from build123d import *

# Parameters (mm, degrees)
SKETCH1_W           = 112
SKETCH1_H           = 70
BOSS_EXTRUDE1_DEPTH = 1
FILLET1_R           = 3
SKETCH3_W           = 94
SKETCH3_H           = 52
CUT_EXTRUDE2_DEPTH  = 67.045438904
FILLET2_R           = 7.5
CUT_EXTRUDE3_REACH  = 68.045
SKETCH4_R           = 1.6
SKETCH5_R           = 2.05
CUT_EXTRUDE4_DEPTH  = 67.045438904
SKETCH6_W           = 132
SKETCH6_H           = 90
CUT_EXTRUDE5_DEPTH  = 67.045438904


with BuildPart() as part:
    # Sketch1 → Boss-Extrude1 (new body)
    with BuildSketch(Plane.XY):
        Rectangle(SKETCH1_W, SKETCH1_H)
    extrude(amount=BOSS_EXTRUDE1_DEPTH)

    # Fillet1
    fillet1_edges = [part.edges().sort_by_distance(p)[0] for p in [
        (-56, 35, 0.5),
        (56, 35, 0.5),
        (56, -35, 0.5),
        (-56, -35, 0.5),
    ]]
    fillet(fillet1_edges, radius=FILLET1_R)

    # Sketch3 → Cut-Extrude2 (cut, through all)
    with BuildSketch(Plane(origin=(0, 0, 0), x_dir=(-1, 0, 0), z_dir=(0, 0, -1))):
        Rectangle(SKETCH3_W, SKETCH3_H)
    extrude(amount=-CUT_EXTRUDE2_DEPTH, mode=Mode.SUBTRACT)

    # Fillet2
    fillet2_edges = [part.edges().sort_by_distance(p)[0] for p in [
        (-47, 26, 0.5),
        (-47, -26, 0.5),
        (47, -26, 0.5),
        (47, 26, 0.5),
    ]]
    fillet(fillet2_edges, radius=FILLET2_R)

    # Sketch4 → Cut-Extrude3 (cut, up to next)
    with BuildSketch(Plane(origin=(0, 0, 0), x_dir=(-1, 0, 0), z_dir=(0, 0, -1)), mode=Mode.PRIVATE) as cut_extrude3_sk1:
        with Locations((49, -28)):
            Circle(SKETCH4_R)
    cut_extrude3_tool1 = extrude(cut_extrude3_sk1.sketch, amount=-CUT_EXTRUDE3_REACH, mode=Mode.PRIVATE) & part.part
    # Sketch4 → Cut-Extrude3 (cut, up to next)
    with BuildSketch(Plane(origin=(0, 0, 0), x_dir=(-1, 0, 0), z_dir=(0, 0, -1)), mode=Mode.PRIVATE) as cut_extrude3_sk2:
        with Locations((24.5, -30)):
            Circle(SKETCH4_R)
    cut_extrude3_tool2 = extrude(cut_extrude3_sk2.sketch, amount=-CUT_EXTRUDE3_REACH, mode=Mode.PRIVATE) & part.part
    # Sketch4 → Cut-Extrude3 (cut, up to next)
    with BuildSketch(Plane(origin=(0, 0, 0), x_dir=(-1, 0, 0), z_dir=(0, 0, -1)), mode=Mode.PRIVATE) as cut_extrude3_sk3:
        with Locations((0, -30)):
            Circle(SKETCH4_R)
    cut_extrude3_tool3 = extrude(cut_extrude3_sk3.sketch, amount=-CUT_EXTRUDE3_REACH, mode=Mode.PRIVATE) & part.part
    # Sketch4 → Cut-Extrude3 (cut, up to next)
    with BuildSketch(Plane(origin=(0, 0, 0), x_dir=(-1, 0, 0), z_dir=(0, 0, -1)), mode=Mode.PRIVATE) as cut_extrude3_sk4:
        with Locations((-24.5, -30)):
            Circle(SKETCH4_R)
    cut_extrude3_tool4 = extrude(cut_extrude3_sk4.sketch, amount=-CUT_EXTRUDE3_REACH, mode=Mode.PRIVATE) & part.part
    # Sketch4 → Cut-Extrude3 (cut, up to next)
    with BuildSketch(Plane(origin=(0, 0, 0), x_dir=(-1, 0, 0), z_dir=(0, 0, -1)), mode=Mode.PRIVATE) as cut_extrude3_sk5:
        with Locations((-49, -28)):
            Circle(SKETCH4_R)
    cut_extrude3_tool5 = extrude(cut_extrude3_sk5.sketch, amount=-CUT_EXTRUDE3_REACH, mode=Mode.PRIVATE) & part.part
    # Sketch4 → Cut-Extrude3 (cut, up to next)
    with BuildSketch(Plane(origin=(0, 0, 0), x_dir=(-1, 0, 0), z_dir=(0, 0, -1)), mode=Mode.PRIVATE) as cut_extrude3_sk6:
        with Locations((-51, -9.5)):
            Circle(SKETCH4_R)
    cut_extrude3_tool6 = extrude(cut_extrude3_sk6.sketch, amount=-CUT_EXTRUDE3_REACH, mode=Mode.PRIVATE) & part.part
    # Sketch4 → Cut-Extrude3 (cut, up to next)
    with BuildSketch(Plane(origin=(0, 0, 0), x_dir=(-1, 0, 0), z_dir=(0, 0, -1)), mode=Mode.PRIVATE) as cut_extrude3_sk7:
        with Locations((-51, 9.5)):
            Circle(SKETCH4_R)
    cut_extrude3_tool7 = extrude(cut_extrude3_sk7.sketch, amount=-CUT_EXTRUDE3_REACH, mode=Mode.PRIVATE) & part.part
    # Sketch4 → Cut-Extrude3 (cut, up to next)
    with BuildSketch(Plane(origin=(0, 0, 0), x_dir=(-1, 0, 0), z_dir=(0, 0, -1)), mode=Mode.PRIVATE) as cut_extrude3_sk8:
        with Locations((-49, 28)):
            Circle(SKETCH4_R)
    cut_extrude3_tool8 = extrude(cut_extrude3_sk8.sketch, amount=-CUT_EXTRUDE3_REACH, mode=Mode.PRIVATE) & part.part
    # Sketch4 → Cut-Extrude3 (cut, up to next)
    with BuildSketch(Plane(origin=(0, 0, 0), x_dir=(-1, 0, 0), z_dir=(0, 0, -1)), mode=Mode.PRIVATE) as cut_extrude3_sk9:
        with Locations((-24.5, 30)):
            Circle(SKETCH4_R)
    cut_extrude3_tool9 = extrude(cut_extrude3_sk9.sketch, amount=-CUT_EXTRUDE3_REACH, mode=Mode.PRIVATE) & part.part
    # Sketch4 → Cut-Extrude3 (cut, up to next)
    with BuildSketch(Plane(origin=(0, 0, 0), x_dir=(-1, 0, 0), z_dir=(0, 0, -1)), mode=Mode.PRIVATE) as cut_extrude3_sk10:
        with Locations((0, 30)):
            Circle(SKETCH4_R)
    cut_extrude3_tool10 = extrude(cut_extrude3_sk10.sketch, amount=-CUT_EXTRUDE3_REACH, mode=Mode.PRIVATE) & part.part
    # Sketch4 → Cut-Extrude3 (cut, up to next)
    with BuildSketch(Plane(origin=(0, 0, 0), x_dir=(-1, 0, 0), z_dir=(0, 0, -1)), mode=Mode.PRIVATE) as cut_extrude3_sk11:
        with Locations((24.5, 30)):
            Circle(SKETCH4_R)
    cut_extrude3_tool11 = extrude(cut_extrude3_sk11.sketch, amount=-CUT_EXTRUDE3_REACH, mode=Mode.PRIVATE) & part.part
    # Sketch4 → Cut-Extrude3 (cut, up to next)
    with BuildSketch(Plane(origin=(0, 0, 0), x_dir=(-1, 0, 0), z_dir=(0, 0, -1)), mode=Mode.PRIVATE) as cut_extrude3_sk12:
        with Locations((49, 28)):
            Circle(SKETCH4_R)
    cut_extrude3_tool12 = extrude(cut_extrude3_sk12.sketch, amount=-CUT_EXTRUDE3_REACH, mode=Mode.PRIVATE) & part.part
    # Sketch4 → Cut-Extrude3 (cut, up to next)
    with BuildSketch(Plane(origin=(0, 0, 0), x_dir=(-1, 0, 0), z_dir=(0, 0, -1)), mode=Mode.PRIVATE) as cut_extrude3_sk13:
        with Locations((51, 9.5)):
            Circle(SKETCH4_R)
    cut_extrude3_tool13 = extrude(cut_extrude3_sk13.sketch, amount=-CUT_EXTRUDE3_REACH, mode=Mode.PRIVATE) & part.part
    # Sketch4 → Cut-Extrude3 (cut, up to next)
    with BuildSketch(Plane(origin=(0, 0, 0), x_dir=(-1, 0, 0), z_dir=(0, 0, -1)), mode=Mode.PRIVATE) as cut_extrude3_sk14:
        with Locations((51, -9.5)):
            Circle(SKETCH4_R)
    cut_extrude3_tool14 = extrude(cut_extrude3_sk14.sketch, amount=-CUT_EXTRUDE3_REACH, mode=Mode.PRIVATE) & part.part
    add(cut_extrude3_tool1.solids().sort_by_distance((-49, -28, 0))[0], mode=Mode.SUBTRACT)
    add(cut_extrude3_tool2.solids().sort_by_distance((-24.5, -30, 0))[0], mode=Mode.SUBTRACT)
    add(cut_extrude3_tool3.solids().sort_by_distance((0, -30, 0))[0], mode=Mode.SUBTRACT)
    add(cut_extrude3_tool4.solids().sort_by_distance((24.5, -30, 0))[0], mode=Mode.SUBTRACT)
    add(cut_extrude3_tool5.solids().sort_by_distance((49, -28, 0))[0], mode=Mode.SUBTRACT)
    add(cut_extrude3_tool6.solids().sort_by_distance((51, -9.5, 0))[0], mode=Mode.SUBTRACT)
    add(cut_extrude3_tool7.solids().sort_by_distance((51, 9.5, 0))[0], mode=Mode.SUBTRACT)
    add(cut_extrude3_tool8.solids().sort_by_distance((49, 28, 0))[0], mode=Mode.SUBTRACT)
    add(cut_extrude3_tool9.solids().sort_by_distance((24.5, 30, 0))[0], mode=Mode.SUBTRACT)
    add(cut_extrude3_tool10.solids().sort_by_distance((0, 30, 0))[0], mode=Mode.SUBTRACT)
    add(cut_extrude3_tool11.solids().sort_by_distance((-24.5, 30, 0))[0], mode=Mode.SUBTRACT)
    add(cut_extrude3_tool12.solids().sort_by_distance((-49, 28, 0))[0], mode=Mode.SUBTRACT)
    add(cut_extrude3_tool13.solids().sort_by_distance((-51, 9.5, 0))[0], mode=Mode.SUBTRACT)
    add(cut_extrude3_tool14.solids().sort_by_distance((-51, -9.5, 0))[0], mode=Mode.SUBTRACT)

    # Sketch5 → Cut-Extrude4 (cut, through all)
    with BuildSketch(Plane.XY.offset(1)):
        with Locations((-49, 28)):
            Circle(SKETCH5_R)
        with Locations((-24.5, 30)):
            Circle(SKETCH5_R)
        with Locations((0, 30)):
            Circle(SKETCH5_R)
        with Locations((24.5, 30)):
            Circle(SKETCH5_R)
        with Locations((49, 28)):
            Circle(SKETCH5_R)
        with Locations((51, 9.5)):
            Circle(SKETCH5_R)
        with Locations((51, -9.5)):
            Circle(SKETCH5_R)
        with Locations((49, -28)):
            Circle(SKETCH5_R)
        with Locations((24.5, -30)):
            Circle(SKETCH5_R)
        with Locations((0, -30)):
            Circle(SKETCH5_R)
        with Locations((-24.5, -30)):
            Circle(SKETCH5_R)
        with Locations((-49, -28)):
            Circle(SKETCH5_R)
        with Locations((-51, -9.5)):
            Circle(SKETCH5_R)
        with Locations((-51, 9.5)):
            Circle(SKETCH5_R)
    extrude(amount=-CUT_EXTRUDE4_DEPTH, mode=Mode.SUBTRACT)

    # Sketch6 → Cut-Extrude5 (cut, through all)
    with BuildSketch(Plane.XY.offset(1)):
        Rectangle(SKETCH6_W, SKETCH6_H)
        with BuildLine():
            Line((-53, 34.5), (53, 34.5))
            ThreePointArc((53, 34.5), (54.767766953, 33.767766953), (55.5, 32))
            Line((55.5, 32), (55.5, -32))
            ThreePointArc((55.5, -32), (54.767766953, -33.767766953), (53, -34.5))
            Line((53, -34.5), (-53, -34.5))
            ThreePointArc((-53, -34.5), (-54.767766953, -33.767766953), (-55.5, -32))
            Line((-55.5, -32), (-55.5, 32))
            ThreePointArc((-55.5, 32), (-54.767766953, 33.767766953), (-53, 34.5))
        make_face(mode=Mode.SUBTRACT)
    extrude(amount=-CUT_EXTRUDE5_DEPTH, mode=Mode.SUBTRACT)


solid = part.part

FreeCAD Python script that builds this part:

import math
import FreeCAD as App
import Part
import Sketcher

V = App.Vector


def edges_at(feature, points):
    """Names of the edges that pass closest to the given points."""
    edges = feature.Shape.Edges
    near = lambda p: min(range(len(edges)), key=lambda i: edges[i].distToShape(Part.Vertex(*p))[0])
    return sorted({f"Edge{near(p) + 1}" for p in points})

doc = App.newDocument("Part")
body = doc.addObject("PartDesign::Body", "Body")

# Sketch on XY plane
sketch1 = body.newObject("Sketcher::SketchObject", "Sketch")
sketch1.AttachmentSupport = (doc.getObject("XY_Plane"), [""])
sketch1.MapMode = "FlatFace"
sketch1.addGeometry(Part.LineSegment(V(-56, 35, 0), V(-56, -35, 0)), False)
sketch1.addGeometry(Part.LineSegment(V(-56, -35, 0), V(56, -35, 0)), False)
sketch1.addGeometry(Part.LineSegment(V(56, -35, 0), V(56, 35, 0)), False)
sketch1.addGeometry(Part.LineSegment(V(56, 35, 0), V(-56, 35, 0)), False)
sketch1.addConstraint(Sketcher.Constraint("Coincident", 0, 2, 1, 1))
sketch1.addConstraint(Sketcher.Constraint("Coincident", 1, 2, 2, 1))
sketch1.addConstraint(Sketcher.Constraint("Coincident", 2, 2, 3, 1))
sketch1.addConstraint(Sketcher.Constraint("Coincident", 3, 2, 0, 1))
sketch1.addConstraint(Sketcher.Constraint("Vertical", 0))
sketch1.addConstraint(Sketcher.Constraint("Horizontal", 1))
sketch1.addConstraint(Sketcher.Constraint("Vertical", 2))
sketch1.addConstraint(Sketcher.Constraint("Horizontal", 3))
sketch1.addConstraint(Sketcher.Constraint("Symmetric", 0, 2, 2, 2, -1, 1))
sketch1.addConstraint(Sketcher.Constraint("DistanceX", 1, 1, 1, 2, 112.0))
sketch1.addConstraint(Sketcher.Constraint("DistanceY", 0, 2, 0, 1, 70.0))
pad1 = body.newObject("PartDesign::Pad", "Pad")
pad1.Profile = sketch1
pad1.Length = 1
doc.recompute()

fillet = body.newObject("PartDesign::Fillet", "Fillet")
fillet.Base = (pad1, edges_at(pad1, [
    (-56, 35, 0.5),
    (56, 35, 0.5),
    (56, -35, 0.5),
    (-56, -35, 0.5),
]))
fillet.Radius = 3

# Sketch on XY plane
sketch2 = body.newObject("Sketcher::SketchObject", "Sketch001")
sketch2.AttachmentSupport = (doc.getObject("XY_Plane"), [""])
sketch2.MapMode = "FlatFace"
sketch2.addGeometry(Part.LineSegment(V(47, 26, 0), V(47, -26, 0)), False)
sketch2.addGeometry(Part.LineSegment(V(47, -26, 0), V(-47, -26, 0)), False)
sketch2.addGeometry(Part.LineSegment(V(-47, -26, 0), V(-47, 26, 0)), False)
sketch2.addGeometry(Part.LineSegment(V(-47, 26, 0), V(47, 26, 0)), False)
sketch2.addConstraint(Sketcher.Constraint("Coincident", 0, 2, 1, 1))
sketch2.addConstraint(Sketcher.Constraint("Coincident", 1, 2, 2, 1))
sketch2.addConstraint(Sketcher.Constraint("Coincident", 2, 2, 3, 1))
sketch2.addConstraint(Sketcher.Constraint("Coincident", 3, 2, 0, 1))
sketch2.addConstraint(Sketcher.Constraint("Vertical", 0))
sketch2.addConstraint(Sketcher.Constraint("Horizontal", 1))
sketch2.addConstraint(Sketcher.Constraint("Vertical", 2))
sketch2.addConstraint(Sketcher.Constraint("Horizontal", 3))
sketch2.addConstraint(Sketcher.Constraint("Symmetric", 0, 2, 2, 2, -1, 1))
sketch2.addConstraint(Sketcher.Constraint("DistanceX", 1, 2, 1, 1, 94.0))
sketch2.addConstraint(Sketcher.Constraint("DistanceY", 0, 2, 0, 1, 52.0))
pocket1 = body.newObject("PartDesign::Pocket", "Pocket")
pocket1.Profile = sketch2
pocket1.Type = "ThroughAll"
pocket1.Reversed = True
doc.recompute()

fillet2 = body.newObject("PartDesign::Fillet", "Fillet001")
fillet2.Base = (pocket1, edges_at(pocket1, [
    (-47, 26, 0.5),
    (-47, -26, 0.5),
    (47, -26, 0.5),
    (47, 26, 0.5),
]))
fillet2.Radius = 7.5

# Sketch on XY plane
sketch3 = body.newObject("Sketcher::SketchObject", "Sketch002")
sketch3.AttachmentSupport = (doc.getObject("XY_Plane"), [""])
sketch3.MapMode = "FlatFace"
sketch3.addGeometry(Part.Circle(V(-49, -28, 0), V(0, 0, 1), 1.6), False)
sketch3.addConstraint(Sketcher.Constraint("Diameter", 0, 3.2))
sketch3.addConstraint(Sketcher.Constraint("DistanceX", 0, 3, -1, 1, 49.0))
sketch3.addConstraint(Sketcher.Constraint("DistanceY", 0, 3, -1, 1, 28.0))
pocket2 = body.newObject("PartDesign::Pocket", "Pocket001")
pocket2.Profile = sketch3
pocket2.Type = "UpToFirst"
pocket2.Reversed = True

# Sketch on XY plane
sketch4 = body.newObject("Sketcher::SketchObject", "Sketch003")
sketch4.AttachmentSupport = (doc.getObject("XY_Plane"), [""])
sketch4.MapMode = "FlatFace"
sketch4.addGeometry(Part.Circle(V(-24.5, -30, 0), V(0, 0, 1), 1.6), False)
sketch4.addConstraint(Sketcher.Constraint("Diameter", 0, 3.2))
sketch4.addConstraint(Sketcher.Constraint("DistanceY", 0, 3, -1, 1, 30.0))
sketch4.addConstraint(Sketcher.Constraint("DistanceX", 0, 3, -1, 1, 24.5))
pocket3 = body.newObject("PartDesign::Pocket", "Pocket002")
pocket3.Profile = sketch4
pocket3.Type = "UpToFirst"
pocket3.Reversed = True

# Sketch on XY plane
sketch5 = body.newObject("Sketcher::SketchObject", "Sketch004")
sketch5.AttachmentSupport = (doc.getObject("XY_Plane"), [""])
sketch5.MapMode = "FlatFace"
sketch5.addGeometry(Part.Circle(V(0, -30, 0), V(0, 0, 1), 1.6), False)
sketch5.addConstraint(Sketcher.Constraint("PointOnObject", 0, 3, -2))
sketch5.addConstraint(Sketcher.Constraint("Diameter", 0, 3.2))
sketch5.addConstraint(Sketcher.Constraint("DistanceY", 0, 3, -1, 1, 30.0))
pocket4 = body.newObject("PartDesign::Pocket", "Pocket003")
pocket4.Profile = sketch5
pocket4.Type = "UpToFirst"
pocket4.Reversed = True

# Sketch on XY plane
sketch6 = body.newObject("Sketcher::SketchObject", "Sketch005")
sketch6.AttachmentSupport = (doc.getObject("XY_Plane"), [""])
sketch6.MapMode = "FlatFace"
sketch6.addGeometry(Part.Circle(V(24.5, -30, 0), V(0, 0, 1), 1.6), False)
sketch6.addConstraint(Sketcher.Constraint("Diameter", 0, 3.2))
sketch6.addConstraint(Sketcher.Constraint("DistanceY", 0, 3, -1, 1, 30.0))
sketch6.addConstraint(Sketcher.Constraint("DistanceX", -1, 1, 0, 3, 24.5))
pocket5 = body.newObject("PartDesign::Pocket", "Pocket004")
pocket5.Profile = sketch6
pocket5.Type = "UpToFirst"
pocket5.Reversed = True

# Sketch on XY plane
sketch7 = body.newObject("Sketcher::SketchObject", "Sketch006")
sketch7.AttachmentSupport = (doc.getObject("XY_Plane"), [""])
sketch7.MapMode = "FlatFace"
sketch7.addGeometry(Part.Circle(V(49, -28, 0), V(0, 0, 1), 1.6), False)
sketch7.addConstraint(Sketcher.Constraint("Diameter", 0, 3.2))
sketch7.addConstraint(Sketcher.Constraint("DistanceX", -1, 1, 0, 3, 49.0))
sketch7.addConstraint(Sketcher.Constraint("DistanceY", 0, 3, -1, 1, 28.0))
pocket6 = body.newObject("PartDesign::Pocket", "Pocket005")
pocket6.Profile = sketch7
pocket6.Type = "UpToFirst"
pocket6.Reversed = True

# Sketch on XY plane
sketch8 = body.newObject("Sketcher::SketchObject", "Sketch007")
sketch8.AttachmentSupport = (doc.getObject("XY_Plane"), [""])
sketch8.MapMode = "FlatFace"
sketch8.addGeometry(Part.Circle(V(51, -9.5, 0), V(0, 0, 1), 1.6), False)
sketch8.addConstraint(Sketcher.Constraint("Diameter", 0, 3.2))
sketch8.addConstraint(Sketcher.Constraint("DistanceX", -1, 1, 0, 3, 51.0))
sketch8.addConstraint(Sketcher.Constraint("DistanceY", 0, 3, -1, 1, 9.5))
pocket7 = body.newObject("PartDesign::Pocket", "Pocket006")
pocket7.Profile = sketch8
pocket7.Type = "UpToFirst"
pocket7.Reversed = True

# Sketch on XY plane
sketch9 = body.newObject("Sketcher::SketchObject", "Sketch008")
sketch9.AttachmentSupport = (doc.getObject("XY_Plane"), [""])
sketch9.MapMode = "FlatFace"
sketch9.addGeometry(Part.Circle(V(51, 9.5, 0), V(0, 0, 1), 1.6), False)
sketch9.addConstraint(Sketcher.Constraint("Diameter", 0, 3.2))
sketch9.addConstraint(Sketcher.Constraint("DistanceX", -1, 1, 0, 3, 51.0))
sketch9.addConstraint(Sketcher.Constraint("DistanceY", -1, 1, 0, 3, 9.5))
pocket8 = body.newObject("PartDesign::Pocket", "Pocket007")
pocket8.Profile = sketch9
pocket8.Type = "UpToFirst"
pocket8.Reversed = True

# Sketch on XY plane
sketch10 = body.newObject("Sketcher::SketchObject", "Sketch009")
sketch10.AttachmentSupport = (doc.getObject("XY_Plane"), [""])
sketch10.MapMode = "FlatFace"
sketch10.addGeometry(Part.Circle(V(49, 28, 0), V(0, 0, 1), 1.6), False)
sketch10.addConstraint(Sketcher.Constraint("Diameter", 0, 3.2))
sketch10.addConstraint(Sketcher.Constraint("DistanceX", -1, 1, 0, 3, 49.0))
sketch10.addConstraint(Sketcher.Constraint("DistanceY", -1, 1, 0, 3, 28.0))
pocket9 = body.newObject("PartDesign::Pocket", "Pocket008")
pocket9.Profile = sketch10
pocket9.Type = "UpToFirst"
pocket9.Reversed = True

# Sketch on XY plane
sketch11 = body.newObject("Sketcher::SketchObject", "Sketch010")
sketch11.AttachmentSupport = (doc.getObject("XY_Plane"), [""])
sketch11.MapMode = "FlatFace"
sketch11.addGeometry(Part.Circle(V(24.5, 30, 0), V(0, 0, 1), 1.6), False)
sketch11.addConstraint(Sketcher.Constraint("Diameter", 0, 3.2))
sketch11.addConstraint(Sketcher.Constraint("DistanceY", -1, 1, 0, 3, 30.0))
sketch11.addConstraint(Sketcher.Constraint("DistanceX", -1, 1, 0, 3, 24.5))
pocket10 = body.newObject("PartDesign::Pocket", "Pocket009")
pocket10.Profile = sketch11
pocket10.Type = "UpToFirst"
pocket10.Reversed = True

# Sketch on XY plane
sketch12 = body.newObject("Sketcher::SketchObject", "Sketch011")
sketch12.AttachmentSupport = (doc.getObject("XY_Plane"), [""])
sketch12.MapMode = "FlatFace"
sketch12.addGeometry(Part.Circle(V(0, 30, 0), V(0, 0, 1), 1.6), False)
sketch12.addConstraint(Sketcher.Constraint("PointOnObject", 0, 3, -2))
sketch12.addConstraint(Sketcher.Constraint("Diameter", 0, 3.2))
sketch12.addConstraint(Sketcher.Constraint("DistanceY", -1, 1, 0, 3, 30.0))
pocket11 = body.newObject("PartDesign::Pocket", "Pocket010")
pocket11.Profile = sketch12
pocket11.Type = "UpToFirst"
pocket11.Reversed = True

# Sketch on XY plane
sketch13 = body.newObject("Sketcher::SketchObject", "Sketch012")
sketch13.AttachmentSupport = (doc.getObject("XY_Plane"), [""])
sketch13.MapMode = "FlatFace"
sketch13.addGeometry(Part.Circle(V(-24.5, 30, 0), V(0, 0, 1), 1.6), False)
sketch13.addConstraint(Sketcher.Constraint("Diameter", 0, 3.2))
sketch13.addConstraint(Sketcher.Constraint("DistanceY", -1, 1, 0, 3, 30.0))
sketch13.addConstraint(Sketcher.Constraint("DistanceX", 0, 3, -1, 1, 24.5))
pocket12 = body.newObject("PartDesign::Pocket", "Pocket011")
pocket12.Profile = sketch13
pocket12.Type = "UpToFirst"
pocket12.Reversed = True

# Sketch on XY plane
sketch14 = body.newObject("Sketcher::SketchObject", "Sketch013")
sketch14.AttachmentSupport = (doc.getObject("XY_Plane"), [""])
sketch14.MapMode = "FlatFace"
sketch14.addGeometry(Part.Circle(V(-49, 28, 0), V(0, 0, 1), 1.6), False)
sketch14.addConstraint(Sketcher.Constraint("Diameter", 0, 3.2))
sketch14.addConstraint(Sketcher.Constraint("DistanceX", 0, 3, -1, 1, 49.0))
sketch14.addConstraint(Sketcher.Constraint("DistanceY", -1, 1, 0, 3, 28.0))
pocket13 = body.newObject("PartDesign::Pocket", "Pocket012")
pocket13.Profile = sketch14
pocket13.Type = "UpToFirst"
pocket13.Reversed = True

# Sketch on XY plane
sketch15 = body.newObject("Sketcher::SketchObject", "Sketch014")
sketch15.AttachmentSupport = (doc.getObject("XY_Plane"), [""])
sketch15.MapMode = "FlatFace"
sketch15.addGeometry(Part.Circle(V(-51, 9.5, 0), V(0, 0, 1), 1.6), False)
sketch15.addConstraint(Sketcher.Constraint("Diameter", 0, 3.2))
sketch15.addConstraint(Sketcher.Constraint("DistanceX", 0, 3, -1, 1, 51.0))
sketch15.addConstraint(Sketcher.Constraint("DistanceY", -1, 1, 0, 3, 9.5))
pocket14 = body.newObject("PartDesign::Pocket", "Pocket013")
pocket14.Profile = sketch15
pocket14.Type = "UpToFirst"
pocket14.Reversed = True

# Sketch on XY plane
sketch16 = body.newObject("Sketcher::SketchObject", "Sketch015")
sketch16.AttachmentSupport = (doc.getObject("XY_Plane"), [""])
sketch16.MapMode = "FlatFace"
sketch16.addGeometry(Part.Circle(V(-51, -9.5, 0), V(0, 0, 1), 1.6), False)
sketch16.addConstraint(Sketcher.Constraint("Diameter", 0, 3.2))
sketch16.addConstraint(Sketcher.Constraint("DistanceX", 0, 3, -1, 1, 51.0))
sketch16.addConstraint(Sketcher.Constraint("DistanceY", 0, 3, -1, 1, 9.5))
pocket15 = body.newObject("PartDesign::Pocket", "Pocket014")
pocket15.Profile = sketch16
pocket15.Type = "UpToFirst"
pocket15.Reversed = True

# Sketch on XY plane
sketch17 = body.newObject("Sketcher::SketchObject", "Sketch016")
sketch17.AttachmentSupport = (doc.getObject("XY_Plane"), [""])
sketch17.MapMode = "FlatFace"
sketch17.AttachmentOffset = App.Placement(V(0, 0, 1), App.Rotation())
sketch17.addGeometry(Part.Circle(V(-49, 28, 0), V(0, 0, 1), 2.05), False)
sketch17.addGeometry(Part.Circle(V(-24.5, 30, 0), V(0, 0, 1), 2.05), False)
sketch17.addGeometry(Part.Circle(V(0, 30, 0), V(0, 0, 1), 2.05), False)
sketch17.addGeometry(Part.Circle(V(24.5, 30, 0), V(0, 0, 1), 2.05), False)
sketch17.addGeometry(Part.Circle(V(49, 28, 0), V(0, 0, 1), 2.05), False)
sketch17.addGeometry(Part.Circle(V(51, 9.5, 0), V(0, 0, 1), 2.05), False)
sketch17.addGeometry(Part.Circle(V(51, -9.5, 0), V(0, 0, 1), 2.05), False)
sketch17.addGeometry(Part.Circle(V(49, -28, 0), V(0, 0, 1), 2.05), False)
sketch17.addGeometry(Part.Circle(V(24.5, -30, 0), V(0, 0, 1), 2.05), False)
sketch17.addGeometry(Part.Circle(V(0, -30, 0), V(0, 0, 1), 2.05), False)
sketch17.addGeometry(Part.Circle(V(-24.5, -30, 0), V(0, 0, 1), 2.05), False)
sketch17.addGeometry(Part.Circle(V(-49, -28, 0), V(0, 0, 1), 2.05), False)
sketch17.addGeometry(Part.Circle(V(-51, -9.5, 0), V(0, 0, 1), 2.05), False)
sketch17.addGeometry(Part.Circle(V(-51, 9.5, 0), V(0, 0, 1), 2.05), False)
sketch17.addConstraint(Sketcher.Constraint("Equal", 0, 1))
sketch17.addConstraint(Sketcher.Constraint("Equal", 1, 2))
sketch17.addConstraint(Sketcher.Constraint("Equal", 2, 3))
sketch17.addConstraint(Sketcher.Constraint("Equal", 3, 4))
sketch17.addConstraint(Sketcher.Constraint("Equal", 4, 5))
sketch17.addConstraint(Sketcher.Constraint("Equal", 5, 6))
sketch17.addConstraint(Sketcher.Constraint("Equal", 6, 7))
sketch17.addConstraint(Sketcher.Constraint("Equal", 7, 8))
sketch17.addConstraint(Sketcher.Constraint("Equal", 8, 9))
sketch17.addConstraint(Sketcher.Constraint("Equal", 9, 10))
sketch17.addConstraint(Sketcher.Constraint("Equal", 10, 11))
sketch17.addConstraint(Sketcher.Constraint("Equal", 11, 12))
sketch17.addConstraint(Sketcher.Constraint("Equal", 12, 13))
sketch17.addConstraint(Sketcher.Constraint("Symmetric", 0, 3, 7, 3, -1, 1))
sketch17.addConstraint(Sketcher.Constraint("Symmetric", 1, 3, 8, 3, -1, 1))
sketch17.addConstraint(Sketcher.Constraint("Symmetric", 2, 3, 9, 3, -1, 1))
sketch17.addConstraint(Sketcher.Constraint("Symmetric", 3, 3, 10, 3, -1, 1))
sketch17.addConstraint(Sketcher.Constraint("Symmetric", 4, 3, 11, 3, -1, 1))
sketch17.addConstraint(Sketcher.Constraint("Symmetric", 5, 3, 12, 3, -1, 1))
sketch17.addConstraint(Sketcher.Constraint("Symmetric", 6, 3, 13, 3, -1, 1))
sketch17.addConstraint(Sketcher.Constraint("Symmetric", 1, 3, 3, 3, -2))
sketch17.addConstraint(Sketcher.Constraint("Symmetric", 0, 3, 4, 3, -2))
sketch17.addConstraint(Sketcher.Constraint("Symmetric", 6, 3, 12, 3, -2))
sketch17.addConstraint(Sketcher.Constraint("PointOnObject", 2, 3, -2))
sketch17.addConstraint(Sketcher.Constraint("Horizontal", 1, 3, 2, 3))
sketch17.addConstraint(Sketcher.Constraint("Diameter", 0, 4.1))
sketch17.addConstraint(Sketcher.Constraint("DistanceX", 0, 3, -1, 1, 49.0))
sketch17.addConstraint(Sketcher.Constraint("DistanceY", -1, 1, 0, 3, 28.0))
sketch17.addConstraint(Sketcher.Constraint("DistanceY", -1, 1, 1, 3, 30.0))
sketch17.addConstraint(Sketcher.Constraint("DistanceX", -1, 1, 5, 3, 51.0))
sketch17.addConstraint(Sketcher.Constraint("DistanceX", 1, 3, 3, 3, 49.0))
sketch17.addConstraint(Sketcher.Constraint("DistanceY", 6, 3, 5, 3, 19.0))
pocket16 = body.newObject("PartDesign::Pocket", "Pocket015")
pocket16.Profile = sketch17
pocket16.Type = "ThroughAll"

# Sketch on XY plane
sketch18 = body.newObject("Sketcher::SketchObject", "Sketch017")
sketch18.AttachmentSupport = (doc.getObject("XY_Plane"), [""])
sketch18.MapMode = "FlatFace"
sketch18.AttachmentOffset = App.Placement(V(0, 0, 1), App.Rotation())
sketch18.addGeometry(Part.LineSegment(V(-66, 45, 0), V(-66, -45, 0)), False)
sketch18.addGeometry(Part.LineSegment(V(-66, -45, 0), V(66, -45, 0)), False)
sketch18.addGeometry(Part.LineSegment(V(66, -45, 0), V(66, 45, 0)), False)
sketch18.addGeometry(Part.LineSegment(V(66, 45, 0), V(-66, 45, 0)), False)
sketch18.addGeometry(Part.ArcOfCircle(Part.Circle(V(-53, 32, 0), V(0, 0, 1), 2.5), math.radians(90), math.radians(180)), False)
sketch18.addGeometry(Part.LineSegment(V(-53, 34.5, 0), V(53, 34.5, 0)), False)
sketch18.addGeometry(Part.ArcOfCircle(Part.Circle(V(53, 32, 0), V(0, 0, 1), 2.5), math.radians(0), math.radians(90)), False)
sketch18.addGeometry(Part.LineSegment(V(55.5, 32, 0), V(55.5, -32, 0)), False)
sketch18.addGeometry(Part.ArcOfCircle(Part.Circle(V(53, -32, 0), V(0, 0, 1), 2.5), math.radians(-90), math.radians(0)), False)
sketch18.addGeometry(Part.LineSegment(V(53, -34.5, 0), V(-53, -34.5, 0)), False)
sketch18.addGeometry(Part.ArcOfCircle(Part.Circle(V(-53, -32, 0), V(0, 0, 1), 2.5), math.radians(180), math.radians(270)), False)
sketch18.addGeometry(Part.LineSegment(V(-55.5, -32, 0), V(-55.5, 32, 0)), False)
sketch18.addConstraint(Sketcher.Constraint("Coincident", 0, 2, 1, 1))
sketch18.addConstraint(Sketcher.Constraint("Coincident", 1, 2, 2, 1))
sketch18.addConstraint(Sketcher.Constraint("Coincident", 2, 2, 3, 1))
sketch18.addConstraint(Sketcher.Constraint("Coincident", 3, 2, 0, 1))
sketch18.addConstraint(Sketcher.Constraint("Tangent", 4, 1, 5, 1))
sketch18.addConstraint(Sketcher.Constraint("Tangent", 5, 2, 6, 2))
sketch18.addConstraint(Sketcher.Constraint("Tangent", 6, 1, 7, 1))
sketch18.addConstraint(Sketcher.Constraint("Tangent", 7, 2, 8, 2))
sketch18.addConstraint(Sketcher.Constraint("Tangent", 8, 1, 9, 1))
sketch18.addConstraint(Sketcher.Constraint("Tangent", 9, 2, 10, 2))
sketch18.addConstraint(Sketcher.Constraint("Tangent", 10, 1, 11, 1))
sketch18.addConstraint(Sketcher.Constraint("Tangent", 11, 2, 4, 2))
sketch18.addConstraint(Sketcher.Constraint("Vertical", 0))
sketch18.addConstraint(Sketcher.Constraint("Horizontal", 1))
sketch18.addConstraint(Sketcher.Constraint("Vertical", 2))
sketch18.addConstraint(Sketcher.Constraint("Horizontal", 3))
sketch18.addConstraint(Sketcher.Constraint("Horizontal", 5))
sketch18.addConstraint(Sketcher.Constraint("Vertical", 7))
sketch18.addConstraint(Sketcher.Constraint("Horizontal", 9))
sketch18.addConstraint(Sketcher.Constraint("Vertical", 11))
sketch18.addConstraint(Sketcher.Constraint("Equal", 4, 6))
sketch18.addConstraint(Sketcher.Constraint("Equal", 6, 8))
sketch18.addConstraint(Sketcher.Constraint("Equal", 8, 10))
sketch18.addConstraint(Sketcher.Constraint("Symmetric", 4, 3, 8, 3, -1, 1))
sketch18.addConstraint(Sketcher.Constraint("Symmetric", 0, 2, 2, 2, -1, 1))
sketch18.addConstraint(Sketcher.Constraint("Radius", 4, 2.5))
sketch18.addConstraint(Sketcher.Constraint("DistanceX", 1, 1, 1, 2, 132.0))
sketch18.addConstraint(Sketcher.Constraint("DistanceX", 5, 1, 5, 2, 106.0))
sketch18.addConstraint(Sketcher.Constraint("DistanceY", 0, 2, 0, 1, 90.0))
sketch18.addConstraint(Sketcher.Constraint("DistanceY", 7, 2, 7, 1, 64.0))
pocket17 = body.newObject("PartDesign::Pocket", "Pocket016")
pocket17.Profile = sketch18
pocket17.Type = "ThroughAll"

doc.recompute()
